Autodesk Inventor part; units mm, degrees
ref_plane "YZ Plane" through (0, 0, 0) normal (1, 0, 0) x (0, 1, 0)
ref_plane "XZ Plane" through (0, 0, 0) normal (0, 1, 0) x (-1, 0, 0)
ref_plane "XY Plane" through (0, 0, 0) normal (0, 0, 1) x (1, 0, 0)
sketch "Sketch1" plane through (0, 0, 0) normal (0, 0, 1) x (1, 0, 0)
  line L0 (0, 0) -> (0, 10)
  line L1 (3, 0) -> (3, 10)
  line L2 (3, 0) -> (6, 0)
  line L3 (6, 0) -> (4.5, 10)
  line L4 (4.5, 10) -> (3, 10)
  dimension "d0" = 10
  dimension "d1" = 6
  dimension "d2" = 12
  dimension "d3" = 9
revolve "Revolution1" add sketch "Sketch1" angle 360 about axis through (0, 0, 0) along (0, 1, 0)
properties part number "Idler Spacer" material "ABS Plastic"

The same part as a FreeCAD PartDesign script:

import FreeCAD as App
import Part
import Sketcher

V = App.Vector
Q = App.Units.Quantity


def add_polygon(sketch, points):
    """Adds a closed chain of lines whose ends are joined by coincident constraints."""
    first, n = sketch.GeometryCount, len(points)
    for a, b in zip(points, points[1:] + points[:1]):
        sketch.addGeometry(Part.LineSegment(App.Vector(*a, 0), App.Vector(*b, 0)), False)
    for i in range(n):
        sketch.addConstraint(Sketcher.Constraint("Coincident", first + i, 2, first + (i + 1) % n, 1))

doc = App.newDocument("Part")
params = doc.addObject("Spreadsheet::Sheet", "Params")
for row, (alias, value) in enumerate([
    ("sketch1_height", "10 mm"),
    ("sketch1_width", "3 mm"),
    ("sketch1_width2", "1.5 mm"),
    ("revolution_angle", "360 deg"),
], start=1):
    params.set(f"A{row}", alias)
    params.set(f"B{row}", "=" + value)
    params.setAlias(f"B{row}", alias)

body = doc.addObject("PartDesign::Body", "Body")

sketch1 = doc.addObject("Sketcher::SketchObject", "Sketch")
body.addObject(sketch1)
sketch1.AttachmentSupport = (doc.XY_Plane, [""])
sketch1.MapMode = "FlatFace"
add_polygon(sketch1, [(3, 10), (3, 0), (6, 0), (4.5, 10)])
sketch1.addConstraint([
    Sketcher.Constraint("Vertical", 0),
    Sketcher.Constraint("Horizontal", 1),
    Sketcher.Constraint("Horizontal", 3),
    Sketcher.Constraint("PointOnObject", 0, 2, -1),
    Sketcher.Constraint("DistanceY", 0, 2, 0, 1, Q("10 mm")),
    Sketcher.Constraint("DistanceX", -1, 1, 1, 2, Q("6 mm")),
    Sketcher.Constraint("DistanceX", 1, 1, 1, 2, Q("3 mm")),
    Sketcher.Constraint("DistanceX", 3, 2, 3, 1, Q("1.5 mm")),
])
sketch1.setExpression("Constraints[8]", "Params.sketch1_height")
sketch1.setExpression("Constraints[10]", "Params.sketch1_width")
sketch1.setExpression("Constraints[11]", "Params.sketch1_width2")
revolution = doc.addObject("PartDesign::Revolution", "Revolution")
body.addObject(revolution)
revolution.Profile = sketch1
revolution.ReferenceAxis = (sketch1, ["V_Axis"])
revolution.setExpression("Angle", "Params.revolution_angle")

doc.recompute()
